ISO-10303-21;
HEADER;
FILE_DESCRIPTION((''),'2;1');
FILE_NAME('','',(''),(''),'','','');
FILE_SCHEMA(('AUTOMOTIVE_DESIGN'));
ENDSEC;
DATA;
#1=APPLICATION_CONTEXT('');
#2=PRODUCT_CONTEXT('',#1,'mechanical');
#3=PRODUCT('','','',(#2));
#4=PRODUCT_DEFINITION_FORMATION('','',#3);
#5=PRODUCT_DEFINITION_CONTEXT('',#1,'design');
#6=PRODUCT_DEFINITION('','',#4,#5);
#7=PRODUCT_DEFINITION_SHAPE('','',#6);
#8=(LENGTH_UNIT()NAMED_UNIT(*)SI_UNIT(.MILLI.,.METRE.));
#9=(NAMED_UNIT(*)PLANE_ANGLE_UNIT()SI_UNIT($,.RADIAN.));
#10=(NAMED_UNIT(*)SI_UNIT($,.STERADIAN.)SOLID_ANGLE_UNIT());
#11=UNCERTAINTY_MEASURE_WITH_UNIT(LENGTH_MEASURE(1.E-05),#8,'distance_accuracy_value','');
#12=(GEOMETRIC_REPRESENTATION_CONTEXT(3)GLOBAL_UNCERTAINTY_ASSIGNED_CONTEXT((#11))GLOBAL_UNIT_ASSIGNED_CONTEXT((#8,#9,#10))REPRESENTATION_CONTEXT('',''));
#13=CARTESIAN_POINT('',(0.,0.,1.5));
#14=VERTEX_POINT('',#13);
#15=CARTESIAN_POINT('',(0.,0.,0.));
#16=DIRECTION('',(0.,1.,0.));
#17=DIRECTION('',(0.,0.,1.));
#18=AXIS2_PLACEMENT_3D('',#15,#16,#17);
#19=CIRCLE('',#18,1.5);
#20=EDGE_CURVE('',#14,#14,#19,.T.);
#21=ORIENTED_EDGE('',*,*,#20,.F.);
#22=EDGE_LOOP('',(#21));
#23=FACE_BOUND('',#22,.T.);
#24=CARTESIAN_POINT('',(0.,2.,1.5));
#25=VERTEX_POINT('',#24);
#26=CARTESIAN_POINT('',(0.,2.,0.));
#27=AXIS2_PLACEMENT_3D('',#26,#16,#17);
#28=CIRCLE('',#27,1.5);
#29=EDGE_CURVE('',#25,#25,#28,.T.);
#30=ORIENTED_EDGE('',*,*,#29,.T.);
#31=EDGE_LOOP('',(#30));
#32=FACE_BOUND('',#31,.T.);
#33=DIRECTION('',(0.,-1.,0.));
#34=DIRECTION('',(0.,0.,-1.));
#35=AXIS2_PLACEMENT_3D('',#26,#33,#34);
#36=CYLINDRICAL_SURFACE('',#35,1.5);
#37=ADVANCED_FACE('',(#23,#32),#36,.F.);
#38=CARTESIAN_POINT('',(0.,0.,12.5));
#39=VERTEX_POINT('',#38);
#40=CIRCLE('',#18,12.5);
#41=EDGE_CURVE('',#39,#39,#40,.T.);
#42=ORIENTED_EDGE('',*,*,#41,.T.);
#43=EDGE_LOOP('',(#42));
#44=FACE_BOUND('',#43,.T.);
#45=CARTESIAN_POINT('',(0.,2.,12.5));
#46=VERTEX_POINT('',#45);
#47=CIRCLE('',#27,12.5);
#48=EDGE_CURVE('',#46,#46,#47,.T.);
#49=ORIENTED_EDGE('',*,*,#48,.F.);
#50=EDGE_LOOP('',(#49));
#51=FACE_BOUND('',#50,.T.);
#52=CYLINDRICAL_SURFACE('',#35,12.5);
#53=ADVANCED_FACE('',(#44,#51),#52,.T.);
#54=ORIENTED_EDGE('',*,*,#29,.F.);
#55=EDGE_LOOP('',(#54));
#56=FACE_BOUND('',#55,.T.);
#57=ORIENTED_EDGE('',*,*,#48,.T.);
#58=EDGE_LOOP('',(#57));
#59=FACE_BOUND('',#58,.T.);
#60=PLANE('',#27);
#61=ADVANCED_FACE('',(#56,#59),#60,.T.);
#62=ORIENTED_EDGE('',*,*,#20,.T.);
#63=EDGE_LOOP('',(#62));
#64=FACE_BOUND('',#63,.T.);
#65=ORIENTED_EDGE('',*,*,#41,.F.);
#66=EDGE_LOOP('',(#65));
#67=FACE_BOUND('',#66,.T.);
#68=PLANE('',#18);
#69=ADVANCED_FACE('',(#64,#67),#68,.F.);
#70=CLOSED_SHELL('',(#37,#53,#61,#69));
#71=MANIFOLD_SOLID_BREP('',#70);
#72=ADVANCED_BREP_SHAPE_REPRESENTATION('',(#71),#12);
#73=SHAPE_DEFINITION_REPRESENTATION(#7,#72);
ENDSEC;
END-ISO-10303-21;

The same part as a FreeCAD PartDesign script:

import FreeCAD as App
import Part
import Sketcher

V = App.Vector
Q = App.Units.Quantity

doc = App.newDocument("Part")
params = doc.addObject("Spreadsheet::Sheet", "Params")
for row, (alias, value) in enumerate([
    ("sketch1_diameter", "25 mm"),
    ("sketch1_diameter2", "3 mm"),
    ("pad1_length", "2 mm"),
], start=1):
    params.set(f"A{row}", alias)
    params.set(f"B{row}", "=" + value)
    params.setAlias(f"B{row}", alias)

body = doc.addObject("PartDesign::Body", "Body")

# Sketch on XZ plane
sketch1 = body.newObject("Sketcher::SketchObject", "Sketch")
sketch1.AttachmentSupport = (doc.getObject("XZ_Plane"), [""])
sketch1.MapMode = "FlatFace"
sketch1.addGeometry([
    Part.Circle(V(0, 0, 0), V(0, 0, 1), 12.5),
    Part.Circle(V(0, 0, 0), V(0, 0, 1), 1.5),
], False)
sketch1.addConstraint([
    Sketcher.Constraint("Coincident", 0, 3, -1, 1),
    Sketcher.Constraint("Coincident", 1, 3, -1, 1),
    Sketcher.Constraint("Diameter", 0, Q("25 mm")),
    Sketcher.Constraint("Diameter", 1, Q("3 mm")),
])
sketch1.setExpression("Constraints[2]", "Params.sketch1_diameter")
sketch1.setExpression("Constraints[3]", "Params.sketch1_diameter2")
pad1 = body.newObject("PartDesign::Pad", "Pad")
pad1.Profile = sketch1
pad1.setExpression("Length", "Params.pad1_length")
pad1.Reversed = True

doc.recompute()
